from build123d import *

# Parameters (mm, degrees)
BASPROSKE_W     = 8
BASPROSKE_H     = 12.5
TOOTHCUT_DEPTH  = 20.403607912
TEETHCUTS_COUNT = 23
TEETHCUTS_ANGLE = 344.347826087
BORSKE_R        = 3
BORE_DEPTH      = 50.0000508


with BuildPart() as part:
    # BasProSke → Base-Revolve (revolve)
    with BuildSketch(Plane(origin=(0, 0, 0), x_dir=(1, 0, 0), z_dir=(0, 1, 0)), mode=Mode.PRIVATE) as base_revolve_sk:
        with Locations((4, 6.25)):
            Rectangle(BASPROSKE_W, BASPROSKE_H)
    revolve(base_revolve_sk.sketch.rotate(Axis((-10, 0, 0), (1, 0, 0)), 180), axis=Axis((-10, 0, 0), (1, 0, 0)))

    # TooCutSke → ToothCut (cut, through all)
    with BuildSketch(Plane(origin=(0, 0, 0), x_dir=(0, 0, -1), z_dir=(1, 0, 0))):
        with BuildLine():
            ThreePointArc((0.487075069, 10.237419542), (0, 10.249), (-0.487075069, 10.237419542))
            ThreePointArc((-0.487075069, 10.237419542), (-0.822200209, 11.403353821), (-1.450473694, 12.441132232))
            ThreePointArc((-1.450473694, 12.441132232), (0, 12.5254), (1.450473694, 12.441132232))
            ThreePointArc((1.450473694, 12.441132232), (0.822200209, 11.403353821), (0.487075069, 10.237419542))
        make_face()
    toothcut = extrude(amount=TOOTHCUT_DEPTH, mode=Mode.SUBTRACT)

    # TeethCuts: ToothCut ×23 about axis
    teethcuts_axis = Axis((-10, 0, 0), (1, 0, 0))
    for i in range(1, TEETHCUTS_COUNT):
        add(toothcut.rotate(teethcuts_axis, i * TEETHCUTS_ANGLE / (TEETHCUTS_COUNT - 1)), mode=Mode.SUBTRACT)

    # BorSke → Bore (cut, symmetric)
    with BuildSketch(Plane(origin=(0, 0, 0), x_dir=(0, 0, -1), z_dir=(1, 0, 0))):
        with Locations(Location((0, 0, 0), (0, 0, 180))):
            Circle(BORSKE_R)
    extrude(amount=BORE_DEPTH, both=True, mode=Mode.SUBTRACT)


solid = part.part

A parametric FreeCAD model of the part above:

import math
import FreeCAD as App
import Part
import Sketcher

V = App.Vector
Q = App.Units.Quantity

doc = App.newDocument("Part")
params = doc.addObject("Spreadsheet::Sheet", "Params")
for row, (alias, value) in enumerate([
    ("sketch1_width", "8 mm"),
    ("sketch1_height", "12.5 mm"),
    ("revolution_angle", "360 deg"),
    ("sketch2_radius", "4.6 mm"),
    ("sketch3_diameter", "6 mm"),
    ("pocket2_length", "100.000102 mm"),
], start=1):
    params.set(f"A{row}", alias)
    params.set(f"B{row}", "=" + value)
    params.setAlias(f"B{row}", alias)

body = doc.addObject("PartDesign::Body", "Body")

# Sketch on XZ plane
sketch1 = doc.addObject("Sketcher::SketchObject", "Sketch")
body.addObject(sketch1)
sketch1.AttachmentSupport = (doc.XZ_Plane, [""])
sketch1.MapMode = "FlatFace"
sketch1.addGeometry([
    Part.LineSegment(V(0, -12, 0), V(0, 0, 0)),
    Part.LineSegment(V(0, 0, 0), V(8, 0, 0)),
    Part.LineSegment(V(8, 0, 0), V(8, -12, 0)),
    Part.LineSegment(V(8, -12, 0), V(0, -12, 0)),
], False)
sketch1.addConstraint([
    Sketcher.Constraint("Coincident", 0, 2, 1, 1),
    Sketcher.Constraint("Coincident", 1, 2, 2, 1),
    Sketcher.Constraint("Coincident", 2, 2, 3, 1),
    Sketcher.Constraint("Coincident", 3, 2, 0, 1),
    Sketcher.Constraint("Vertical", 0),
    Sketcher.Constraint("Horizontal", 1),
    Sketcher.Constraint("Vertical", 2),
    Sketcher.Constraint("Horizontal", 3),
    Sketcher.Constraint("Coincident", 0, 2, -1, 1),
    Sketcher.Constraint("DistanceX", 1, 1, 1, 2, Q("8 mm")),
    Sketcher.Constraint("DistanceY", 0, 1, 0, 2, Q("12.5 mm")),
])
sketch1.setExpression("Constraints[9]", "Params.sketch1_width")
sketch1.setExpression("Constraints[10]", "Params.sketch1_height")
revolution = doc.addObject("PartDesign::Revolution", "Revolution")
body.addObject(revolution)
revolution.Profile = sketch1
revolution.ReferenceAxis = (sketch1, ["H_Axis"])
revolution.setExpression("Angle", "Params.revolution_angle")

# Sketch on YZ plane
sketch2 = doc.addObject("Sketcher::SketchObject", "Sketch001")
body.addObject(sketch2)
sketch2.AttachmentSupport = (doc.YZ_Plane, [""])
sketch2.MapMode = "FlatFace"
sketch2.addGeometry([
    Part.ArcOfCircle(Part.Circle(V(0, 0, 0), V(0, 0, 1), 10.2), math.radians(-2.72), math.radians(2.72)),
    Part.ArcOfCircle(Part.Circle(V(9.6, -5, 0), V(0, 0, 1), 4.6), math.radians(51), math.radians(82)),
    Part.ArcOfCircle(Part.Circle(V(0, 0, 0), V(0, 0, 1), 12.5), math.radians(-6.65), math.radians(6.65)),
    Part.ArcOfCircle(Part.Circle(V(9.6, 5, 0), V(0, 0, 1), 4.6), math.radians(-82), math.radians(-51)),
], False)
sketch2.addConstraint([
    Sketcher.Constraint("Coincident", 0, 1, 1, 2),
    Sketcher.Constraint("Coincident", 1, 1, 2, 1),
    Sketcher.Constraint("Coincident", 2, 2, 3, 2),
    Sketcher.Constraint("Coincident", 3, 1, 0, 2),
    Sketcher.Constraint("Coincident", 0, 3, -1, 1),
    Sketcher.Constraint("Coincident", 2, 3, -1, 1),
    Sketcher.Constraint("Equal", 1, 3),
    Sketcher.Constraint("Symmetric", 1, 3, 3, 3, -1),
    Sketcher.Constraint("Radius", 1, Q("4.6 mm")),
    Sketcher.Constraint("Radius", 0, Q("10.249 mm")),
    Sketcher.Constraint("Radius", 2, Q("12.5254 mm")),
    Sketcher.Constraint("DistanceY", 1, 1, 0, 1, Q("0.963399 mm")),
    Sketcher.Constraint("DistanceX", -1, 1, 0, 1, Q("10.23742 mm")),
])
sketch2.setExpression("Constraints[8]", "Params.sketch2_radius")
pocket1 = doc.addObject("PartDesign::Pocket", "Pocket")
body.addObject(pocket1)
pocket1.Profile = sketch2
pocket1.Type = "ThroughAll"
pocket1.Reversed = True
doc.recompute()

polarpattern = doc.addObject("PartDesign::PolarPattern", "PolarPattern")
body.addObject(polarpattern)
polarpattern.Originals = [pocket1]
polarpattern.Axis = (doc.X_Axis, [""])
polarpattern.Angle = 360
polarpattern.Occurrences = 23
body.Tip = polarpattern

# Sketch on YZ plane
sketch3 = doc.addObject("Sketcher::SketchObject", "Sketch002")
body.addObject(sketch3)
sketch3.AttachmentSupport = (doc.YZ_Plane, [""])
sketch3.MapMode = "FlatFace"
sketch3.addGeometry(Part.Circle(V(0, 0, 0), V(0, 0, 1), 3), False)
sketch3.addConstraint([
    Sketcher.Constraint("Coincident", 0, 3, -1, 1),
    Sketcher.Constraint("Diameter", 0, Q("6 mm")),
])
sketch3.setExpression("Constraints[1]", "Params.sketch3_diameter")
pocket2 = doc.addObject("PartDesign::Pocket", "Pocket001")
body.addObject(pocket2)
pocket2.Profile = sketch3
pocket2.setExpression("Length", "Params.pocket2_length")
pocket2.Midplane = True

doc.recompute()
